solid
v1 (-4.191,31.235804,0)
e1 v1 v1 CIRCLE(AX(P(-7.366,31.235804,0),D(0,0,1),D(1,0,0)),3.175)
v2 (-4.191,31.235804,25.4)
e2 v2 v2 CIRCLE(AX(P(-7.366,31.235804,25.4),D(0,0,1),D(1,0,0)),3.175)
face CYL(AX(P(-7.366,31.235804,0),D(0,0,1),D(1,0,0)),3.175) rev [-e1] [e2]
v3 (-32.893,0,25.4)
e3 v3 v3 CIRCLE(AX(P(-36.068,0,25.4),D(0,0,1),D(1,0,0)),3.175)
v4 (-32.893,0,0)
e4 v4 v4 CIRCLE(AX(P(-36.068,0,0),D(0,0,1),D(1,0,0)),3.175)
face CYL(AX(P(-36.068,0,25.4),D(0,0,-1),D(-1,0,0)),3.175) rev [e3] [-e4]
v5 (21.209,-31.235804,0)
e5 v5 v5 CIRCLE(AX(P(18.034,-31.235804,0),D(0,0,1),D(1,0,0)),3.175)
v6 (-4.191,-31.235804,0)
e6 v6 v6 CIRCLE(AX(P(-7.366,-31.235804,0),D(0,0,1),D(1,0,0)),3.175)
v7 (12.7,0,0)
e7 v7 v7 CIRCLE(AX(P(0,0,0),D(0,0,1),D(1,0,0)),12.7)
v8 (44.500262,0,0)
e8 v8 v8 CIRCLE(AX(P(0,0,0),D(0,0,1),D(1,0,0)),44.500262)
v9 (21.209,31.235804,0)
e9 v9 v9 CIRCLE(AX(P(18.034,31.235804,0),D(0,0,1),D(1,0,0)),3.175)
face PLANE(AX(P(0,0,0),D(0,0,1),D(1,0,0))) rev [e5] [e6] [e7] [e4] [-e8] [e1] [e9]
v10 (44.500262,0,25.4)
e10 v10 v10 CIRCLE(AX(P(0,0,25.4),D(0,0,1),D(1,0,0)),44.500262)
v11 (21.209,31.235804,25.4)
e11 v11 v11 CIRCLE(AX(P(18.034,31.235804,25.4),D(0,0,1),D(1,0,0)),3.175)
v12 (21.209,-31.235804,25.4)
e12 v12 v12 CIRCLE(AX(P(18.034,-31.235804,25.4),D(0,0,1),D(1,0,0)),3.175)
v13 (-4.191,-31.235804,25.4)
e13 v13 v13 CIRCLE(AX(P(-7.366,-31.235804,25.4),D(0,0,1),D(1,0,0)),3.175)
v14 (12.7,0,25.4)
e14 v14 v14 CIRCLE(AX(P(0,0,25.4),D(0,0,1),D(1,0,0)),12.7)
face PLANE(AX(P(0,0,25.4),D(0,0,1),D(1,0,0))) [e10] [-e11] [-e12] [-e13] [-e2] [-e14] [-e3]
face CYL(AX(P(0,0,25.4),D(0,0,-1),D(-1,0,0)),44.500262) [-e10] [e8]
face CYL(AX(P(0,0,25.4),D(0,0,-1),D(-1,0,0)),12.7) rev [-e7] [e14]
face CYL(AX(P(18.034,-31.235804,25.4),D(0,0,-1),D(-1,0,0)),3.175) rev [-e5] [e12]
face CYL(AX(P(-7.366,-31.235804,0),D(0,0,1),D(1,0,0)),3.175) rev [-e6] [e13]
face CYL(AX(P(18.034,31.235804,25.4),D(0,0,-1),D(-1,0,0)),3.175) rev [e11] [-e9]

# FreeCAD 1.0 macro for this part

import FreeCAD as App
import Part
import Sketcher
Q = App.Units.Quantity

doc = App.newDocument("Part")
params = doc.addObject("Spreadsheet::Sheet", "Params")
for row, (alias, value) in enumerate([
    ("sketch1_diameter", "1 in"),
    ("sketch1_diameter2", "0.25 in"),
    ("pad1_length", "1 in"),
    ("sketch2_diameter", "0.25 in"),
    ("pocket1_length", "1 in"),
], start=1):
    params.set(f"A{row}", alias)
    params.set(f"B{row}", "=" + value)
    params.setAlias(f"B{row}", alias)

body = doc.addObject("PartDesign::Body", "Body")

# Sketch on XY plane
sketch1 = doc.addObject("Sketcher::SketchObject", "Sketch")
body.addObject(sketch1)
sketch1.AttachmentSupport = (doc.XY_Plane, [""])
sketch1.MapMode = "FlatFace"
sketch1.addGeometry(Part.Circle(App.Vector(0, 0, 0), App.Vector(0, 0, 1), 44.500262), False)
sketch1.addGeometry(Part.Circle(App.Vector(18.034, -31.235804, 0), App.Vector(0, 0, 1), 3.175), False)
sketch1.addGeometry(Part.Circle(App.Vector(-36.068, 0, 0), App.Vector(0, 0, 1), 3.175), False)
sketch1.addGeometry(Part.Circle(App.Vector(0, 0, 0), App.Vector(0, 0, 1), 12.7), False)
sketch1.addGeometry(Part.Circle(App.Vector(18.034, 31.235804, 0), App.Vector(0, 0, 1), 3.175), False)
sketch1.addConstraint(Sketcher.Constraint("Coincident", 0, 3, -1, 1))
sketch1.addConstraint(Sketcher.Constraint("Coincident", 3, 3, -1, 1))
sketch1.addConstraint(Sketcher.Constraint("Equal", 1, 2))
sketch1.addConstraint(Sketcher.Constraint("Equal", 2, 4))
sketch1.addConstraint(Sketcher.Constraint("Symmetric", 1, 3, 4, 3, -1))
sketch1.addConstraint(Sketcher.Constraint("PointOnObject", 2, 3, -1))
sketch1.addConstraint(Sketcher.Constraint("Diameter", 3, Q("1 in")))
sketch1.addConstraint(Sketcher.Constraint("Diameter", 1, Q("0.25 in")))
sketch1.addConstraint(Sketcher.Constraint("DistanceX", -1, 1, 1, 3, Q("0.71 in")))
sketch1.addConstraint(Sketcher.Constraint("DistanceX", 2, 3, -1, 1, Q("1.42 in")))
sketch1.addConstraint(Sketcher.Constraint("Diameter", 0, Q("89.000524 mm")))
sketch1.addConstraint(Sketcher.Constraint("DistanceY", 1, 3, 4, 3, Q("62.471609 mm")))
sketch1.setExpression("Constraints[6]", "Params.sketch1_diameter")
sketch1.setExpression("Constraints[7]", "Params.sketch1_diameter2")
pad1 = doc.addObject("PartDesign::Pad", "Pad")
body.addObject(pad1)
pad1.Profile = sketch1
pad1.setExpression("Length", "Params.pad1_length")

# Sketch on XY plane
sketch2 = doc.addObject("Sketcher::SketchObject", "Sketch001")
body.addObject(sketch2)
sketch2.AttachmentSupport = (doc.XY_Plane, [""])
sketch2.MapMode = "FlatFace"
sketch2.AttachmentOffset = App.Placement(App.Vector(0, 0, 1 * 25.4), App.Rotation())
sketch2.addGeometry(Part.Circle(App.Vector(-7.366, -31.235804, 0), App.Vector(0, 0, 1), 3.175), False)
sketch2.addGeometry(Part.Circle(App.Vector(-7.366, 31.235804, 0), App.Vector(0, 0, 1), 3.175), False)
sketch2.addConstraint(Sketcher.Constraint("Equal", 0, 1))
sketch2.addConstraint(Sketcher.Constraint("Symmetric", 0, 3, 1, 3, -1))
sketch2.addConstraint(Sketcher.Constraint("Diameter", 0, Q("0.25 in")))
sketch2.addConstraint(Sketcher.Constraint("DistanceX", 0, 3, -1, 1, Q("0.29 in")))
sketch2.addConstraint(Sketcher.Constraint("DistanceY", 0, 3, 1, 3, Q("62.471609 mm")))
sketch2.setExpression("Constraints[2]", "Params.sketch2_diameter")
pocket1 = doc.addObject("PartDesign::Pocket", "Pocket")
body.addObject(pocket1)
pocket1.Profile = sketch2
pocket1.setExpression("Length", "Params.pocket1_length")

doc.recompute()
